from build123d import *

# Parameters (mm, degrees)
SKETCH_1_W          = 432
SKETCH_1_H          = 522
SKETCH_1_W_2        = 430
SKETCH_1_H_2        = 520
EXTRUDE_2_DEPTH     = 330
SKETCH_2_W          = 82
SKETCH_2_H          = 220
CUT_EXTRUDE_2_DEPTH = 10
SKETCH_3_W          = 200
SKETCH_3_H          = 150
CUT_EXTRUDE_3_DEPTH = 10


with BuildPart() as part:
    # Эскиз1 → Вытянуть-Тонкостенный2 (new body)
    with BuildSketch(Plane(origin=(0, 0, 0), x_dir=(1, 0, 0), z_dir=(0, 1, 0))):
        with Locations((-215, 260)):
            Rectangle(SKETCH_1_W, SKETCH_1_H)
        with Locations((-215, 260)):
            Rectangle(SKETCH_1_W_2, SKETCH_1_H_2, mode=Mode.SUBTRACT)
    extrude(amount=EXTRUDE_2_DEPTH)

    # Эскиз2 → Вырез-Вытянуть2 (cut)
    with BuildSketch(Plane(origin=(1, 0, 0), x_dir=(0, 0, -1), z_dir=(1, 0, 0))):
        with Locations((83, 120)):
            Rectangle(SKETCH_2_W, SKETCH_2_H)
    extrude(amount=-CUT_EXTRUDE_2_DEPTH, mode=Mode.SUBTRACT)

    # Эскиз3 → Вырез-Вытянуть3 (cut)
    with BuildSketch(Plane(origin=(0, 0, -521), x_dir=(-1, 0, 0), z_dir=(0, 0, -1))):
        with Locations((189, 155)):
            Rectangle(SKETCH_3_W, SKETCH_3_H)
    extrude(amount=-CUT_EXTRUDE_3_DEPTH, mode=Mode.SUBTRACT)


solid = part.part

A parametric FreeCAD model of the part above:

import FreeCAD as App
import Part
import Sketcher


def add_polygon(sketch, points):
    """Adds a closed chain of lines whose ends are joined by coincident constraints."""
    first, n = sketch.GeometryCount, len(points)
    for a, b in zip(points, points[1:] + points[:1]):
        sketch.addGeometry(Part.LineSegment(App.Vector(*a, 0), App.Vector(*b, 0)), False)
    for i in range(n):
        sketch.addConstraint(Sketcher.Constraint("Coincident", first + i, 2, first + (i + 1) % n, 1))

doc = App.newDocument("Part")
body = doc.addObject("PartDesign::Body", "Body")

# Sketch on XZ plane
sketch1 = doc.addObject("Sketcher::SketchObject", "Sketch")
body.addObject(sketch1)
sketch1.AttachmentSupport = (doc.XZ_Plane, [""])
sketch1.MapMode = "FlatFace"
add_polygon(sketch1, [(-431, -521), (-431, 1), (1, 1), (1, -521)])  # lines 0-3
add_polygon(sketch1, [(0, 0), (-430, 0), (-430, -520), (0, -520)])  # lines 4-7
sketch1.addConstraint([
    Sketcher.Constraint("Vertical", 0),
    Sketcher.Constraint("Horizontal", 1),
    Sketcher.Constraint("Vertical", 2),
    Sketcher.Constraint("Horizontal", 3),
    Sketcher.Constraint("Horizontal", 4),
    Sketcher.Constraint("Vertical", 5),
    Sketcher.Constraint("Horizontal", 6),
    Sketcher.Constraint("Vertical", 7),
    Sketcher.Constraint("Coincident", 7, 2, -1, 1),
    Sketcher.Constraint("DistanceX", 1, 1, 1, 2, 432.0),
    Sketcher.Constraint("DistanceX", 4, 2, 4, 1, 430.0),
    Sketcher.Constraint("DistanceY", 0, 1, 0, 2, 522.0),
    Sketcher.Constraint("DistanceY", 5, 2, 5, 1, 520.0),
    Sketcher.Constraint("DistanceX", 0, 2, -1, 1, 431.0),
    Sketcher.Constraint("DistanceY", -1, 1, 0, 2, 1.0),
])
pad1 = doc.addObject("PartDesign::Pad", "Pad")
body.addObject(pad1)
pad1.Profile = sketch1
pad1.Length = 330
pad1.Reversed = True

# Sketch on YZ plane
sketch2 = doc.addObject("Sketcher::SketchObject", "Sketch001")
body.addObject(sketch2)
sketch2.AttachmentSupport = (doc.YZ_Plane, [""])
sketch2.MapMode = "FlatFace"
sketch2.AttachmentOffset = App.Placement(App.Vector(0, 0, 1), App.Rotation())
add_polygon(sketch2, [(230, -42), (10, -42), (10, -124), (230, -124)])  # lines 0-3
sketch2.addConstraint([
    Sketcher.Constraint("Horizontal", 0),
    Sketcher.Constraint("Vertical", 1),
    Sketcher.Constraint("Horizontal", 2),
    Sketcher.Constraint("Vertical", 3),
    Sketcher.Constraint("DistanceX", 0, 2, 0, 1, 220.0),
    Sketcher.Constraint("DistanceY", 1, 2, 1, 1, 82.0),
    Sketcher.Constraint("DistanceX", -1, 1, 0, 2, 10.0),
    Sketcher.Constraint("DistanceY", 0, 2, -1, 1, 42.0),
])
pocket1 = doc.addObject("PartDesign::Pocket", "Pocket")
body.addObject(pocket1)
pocket1.Profile = sketch2
pocket1.Length = 10

# Sketch on XY plane
sketch3 = doc.addObject("Sketcher::SketchObject", "Sketch002")
body.addObject(sketch3)
sketch3.AttachmentSupport = (doc.XY_Plane, [""])
sketch3.MapMode = "FlatFace"
sketch3.AttachmentOffset = App.Placement(App.Vector(0, 0, -521), App.Rotation())
add_polygon(sketch3, [(-89, 230), (-89, 80), (-289, 80), (-289, 230)])  # lines 0-3
sketch3.addConstraint([
    Sketcher.Constraint("Vertical", 0),
    Sketcher.Constraint("Horizontal", 1),
    Sketcher.Constraint("Vertical", 2),
    Sketcher.Constraint("Horizontal", 3),
    Sketcher.Constraint("DistanceX", 1, 2, 1, 1, 200.0),
    Sketcher.Constraint("DistanceY", 0, 2, 0, 1, 150.0),
    Sketcher.Constraint("DistanceX", 0, 2, -1, 1, 89.0),
    Sketcher.Constraint("DistanceY", -1, 1, 0, 2, 80.0),
])
pocket2 = doc.addObject("PartDesign::Pocket", "Pocket001")
body.addObject(pocket2)
pocket2.Profile = sketch3
pocket2.Length = 10
pocket2.Reversed = True

doc.recompute()
